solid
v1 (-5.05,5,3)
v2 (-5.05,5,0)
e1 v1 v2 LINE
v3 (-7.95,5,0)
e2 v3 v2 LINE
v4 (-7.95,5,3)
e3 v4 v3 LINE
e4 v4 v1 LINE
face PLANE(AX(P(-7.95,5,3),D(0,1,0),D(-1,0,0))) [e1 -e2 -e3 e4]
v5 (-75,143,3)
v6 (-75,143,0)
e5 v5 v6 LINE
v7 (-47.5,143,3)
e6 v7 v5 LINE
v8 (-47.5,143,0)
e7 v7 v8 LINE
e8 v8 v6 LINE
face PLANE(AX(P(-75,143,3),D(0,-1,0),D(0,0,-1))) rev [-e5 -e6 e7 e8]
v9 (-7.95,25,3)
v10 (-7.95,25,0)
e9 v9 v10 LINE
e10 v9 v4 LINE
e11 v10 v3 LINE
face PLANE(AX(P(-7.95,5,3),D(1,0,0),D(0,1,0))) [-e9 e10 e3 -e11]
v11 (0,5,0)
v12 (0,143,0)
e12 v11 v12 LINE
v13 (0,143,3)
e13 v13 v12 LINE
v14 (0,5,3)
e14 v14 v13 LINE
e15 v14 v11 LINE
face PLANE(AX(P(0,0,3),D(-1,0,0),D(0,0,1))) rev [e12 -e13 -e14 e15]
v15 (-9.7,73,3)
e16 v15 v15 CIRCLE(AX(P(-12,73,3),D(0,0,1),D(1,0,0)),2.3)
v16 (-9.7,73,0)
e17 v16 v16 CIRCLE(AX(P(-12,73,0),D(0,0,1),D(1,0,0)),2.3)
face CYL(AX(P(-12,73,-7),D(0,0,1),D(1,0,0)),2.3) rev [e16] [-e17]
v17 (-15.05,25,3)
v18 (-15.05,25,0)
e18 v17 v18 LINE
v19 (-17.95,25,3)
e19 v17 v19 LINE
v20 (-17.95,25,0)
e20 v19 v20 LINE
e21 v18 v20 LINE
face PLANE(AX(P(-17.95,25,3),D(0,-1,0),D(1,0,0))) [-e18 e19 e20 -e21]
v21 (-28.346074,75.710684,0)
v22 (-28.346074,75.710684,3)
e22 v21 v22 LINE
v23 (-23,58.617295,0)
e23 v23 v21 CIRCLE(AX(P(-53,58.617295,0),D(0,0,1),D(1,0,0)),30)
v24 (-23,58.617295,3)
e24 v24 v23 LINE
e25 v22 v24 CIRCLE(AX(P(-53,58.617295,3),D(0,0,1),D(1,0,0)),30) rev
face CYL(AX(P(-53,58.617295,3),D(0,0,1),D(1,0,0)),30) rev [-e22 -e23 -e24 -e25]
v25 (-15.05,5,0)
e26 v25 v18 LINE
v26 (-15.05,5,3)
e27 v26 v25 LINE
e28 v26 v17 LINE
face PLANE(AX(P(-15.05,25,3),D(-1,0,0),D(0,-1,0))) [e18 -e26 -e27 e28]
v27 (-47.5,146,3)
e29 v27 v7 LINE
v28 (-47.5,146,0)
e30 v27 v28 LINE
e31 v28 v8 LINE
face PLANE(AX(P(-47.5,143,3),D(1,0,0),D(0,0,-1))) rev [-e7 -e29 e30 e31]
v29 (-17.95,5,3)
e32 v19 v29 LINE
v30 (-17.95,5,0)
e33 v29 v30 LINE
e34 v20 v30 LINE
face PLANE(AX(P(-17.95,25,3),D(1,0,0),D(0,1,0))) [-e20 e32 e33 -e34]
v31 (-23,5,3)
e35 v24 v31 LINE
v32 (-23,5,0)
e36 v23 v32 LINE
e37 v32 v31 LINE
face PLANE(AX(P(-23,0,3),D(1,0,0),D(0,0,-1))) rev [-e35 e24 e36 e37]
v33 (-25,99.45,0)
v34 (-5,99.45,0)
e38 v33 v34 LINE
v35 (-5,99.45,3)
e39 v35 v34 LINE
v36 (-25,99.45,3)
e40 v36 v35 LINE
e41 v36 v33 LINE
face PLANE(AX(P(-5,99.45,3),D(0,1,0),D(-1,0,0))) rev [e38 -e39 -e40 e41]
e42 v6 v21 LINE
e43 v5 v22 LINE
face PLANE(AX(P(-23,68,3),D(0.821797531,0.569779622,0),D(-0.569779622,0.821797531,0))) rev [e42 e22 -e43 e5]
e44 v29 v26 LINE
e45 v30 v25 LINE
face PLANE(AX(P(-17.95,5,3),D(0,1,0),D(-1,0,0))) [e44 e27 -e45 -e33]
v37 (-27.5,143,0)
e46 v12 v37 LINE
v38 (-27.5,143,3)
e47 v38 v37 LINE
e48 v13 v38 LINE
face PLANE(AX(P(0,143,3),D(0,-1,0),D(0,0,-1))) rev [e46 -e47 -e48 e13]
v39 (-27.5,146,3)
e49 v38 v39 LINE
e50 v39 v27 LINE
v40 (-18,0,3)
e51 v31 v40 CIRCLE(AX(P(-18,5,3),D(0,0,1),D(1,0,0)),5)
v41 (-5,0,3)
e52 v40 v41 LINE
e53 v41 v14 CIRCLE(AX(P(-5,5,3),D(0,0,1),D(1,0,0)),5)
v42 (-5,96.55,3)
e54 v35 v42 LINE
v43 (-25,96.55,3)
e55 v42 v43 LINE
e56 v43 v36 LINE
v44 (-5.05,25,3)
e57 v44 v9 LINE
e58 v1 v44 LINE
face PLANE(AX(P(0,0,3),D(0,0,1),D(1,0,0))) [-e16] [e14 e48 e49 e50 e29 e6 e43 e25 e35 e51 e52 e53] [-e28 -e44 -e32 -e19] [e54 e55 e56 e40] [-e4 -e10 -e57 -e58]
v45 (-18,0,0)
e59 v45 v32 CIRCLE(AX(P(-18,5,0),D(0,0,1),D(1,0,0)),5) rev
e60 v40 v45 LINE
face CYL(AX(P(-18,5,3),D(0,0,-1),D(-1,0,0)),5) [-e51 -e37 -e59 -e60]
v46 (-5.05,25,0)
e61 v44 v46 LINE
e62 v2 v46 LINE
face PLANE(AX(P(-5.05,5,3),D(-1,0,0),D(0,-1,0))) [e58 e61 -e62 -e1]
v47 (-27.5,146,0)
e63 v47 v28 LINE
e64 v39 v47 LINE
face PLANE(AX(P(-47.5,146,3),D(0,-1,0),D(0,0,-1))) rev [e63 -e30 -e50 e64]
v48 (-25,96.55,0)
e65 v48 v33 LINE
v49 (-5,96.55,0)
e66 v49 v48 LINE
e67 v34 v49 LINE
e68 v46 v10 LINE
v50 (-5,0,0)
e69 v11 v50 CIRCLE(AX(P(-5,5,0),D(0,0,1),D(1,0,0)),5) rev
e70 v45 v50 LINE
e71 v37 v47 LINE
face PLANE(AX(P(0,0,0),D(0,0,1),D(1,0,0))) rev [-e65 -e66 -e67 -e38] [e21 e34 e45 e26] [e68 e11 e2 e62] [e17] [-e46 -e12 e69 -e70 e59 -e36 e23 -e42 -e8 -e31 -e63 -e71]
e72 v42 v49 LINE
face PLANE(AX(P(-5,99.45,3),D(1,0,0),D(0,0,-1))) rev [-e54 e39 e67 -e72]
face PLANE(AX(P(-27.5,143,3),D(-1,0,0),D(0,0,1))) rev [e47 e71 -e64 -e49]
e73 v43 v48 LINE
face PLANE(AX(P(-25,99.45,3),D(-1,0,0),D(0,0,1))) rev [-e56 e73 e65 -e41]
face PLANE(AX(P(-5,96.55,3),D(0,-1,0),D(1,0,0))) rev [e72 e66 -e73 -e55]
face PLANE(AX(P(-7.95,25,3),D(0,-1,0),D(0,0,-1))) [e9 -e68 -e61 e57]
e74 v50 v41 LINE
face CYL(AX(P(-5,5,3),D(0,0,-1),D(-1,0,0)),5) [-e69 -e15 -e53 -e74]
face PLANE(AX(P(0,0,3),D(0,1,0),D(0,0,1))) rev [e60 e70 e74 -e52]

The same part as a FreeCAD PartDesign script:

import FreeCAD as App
import Part
import Sketcher
from FreeCAD import Vector


def edges_at(feature, points):
    """Names of the edges that pass closest to the given points."""
    edges = feature.Shape.Edges
    near = lambda p: min(range(len(edges)), key=lambda i: edges[i].distToShape(Part.Vertex(*p))[0])
    return sorted({f"Edge{near(p) + 1}" for p in points})


def add_polygon(sketch, points):
    """Adds a closed chain of lines whose ends are joined by coincident constraints."""
    first, n = sketch.GeometryCount, len(points)
    for a, b in zip(points, points[1:] + points[:1]):
        sketch.addGeometry(Part.LineSegment(App.Vector(*a, 0), App.Vector(*b, 0)), False)
    for i in range(n):
        sketch.addConstraint(Sketcher.Constraint("Coincident", first + i, 2, first + (i + 1) % n, 1))

doc = App.newDocument("Part")
body = doc.addObject("PartDesign::Body", "Body")

# Sketch on XY plane
sketch1 = body.newObject("Sketcher::SketchObject", "Sketch")
sketch1.AttachmentSupport = (doc.getObject("XY_Plane"), [""])
sketch1.MapMode = "FlatFace"
add_polygon(sketch1, [(-23, 0), (0, 0), (0, 143), (-27.5, 143), (-27.5, 146), (-47.5, 146), (-47.5, 143), (-75, 143), (-23, 68)])  # lines 0-8
add_polygon(sketch1, [(-8, 5), (-8, 25), (-5, 25), (-5, 5)])  # lines 9-12
add_polygon(sketch1, [(-17.9, 5), (-17.9, 25), (-15.1, 25), (-15.1, 5)])  # lines 13-16
sketch1.addConstraint(Sketcher.Constraint("Horizontal", 0))
sketch1.addConstraint(Sketcher.Constraint("Vertical", 1))
sketch1.addConstraint(Sketcher.Constraint("Horizontal", 2))
sketch1.addConstraint(Sketcher.Constraint("Vertical", 3))
sketch1.addConstraint(Sketcher.Constraint("Horizontal", 4))
sketch1.addConstraint(Sketcher.Constraint("Vertical", 5))
sketch1.addConstraint(Sketcher.Constraint("Horizontal", 6))
sketch1.addConstraint(Sketcher.Constraint("Vertical", 8))
sketch1.addConstraint(Sketcher.Constraint("Vertical", 9))
sketch1.addConstraint(Sketcher.Constraint("Horizontal", 10))
sketch1.addConstraint(Sketcher.Constraint("Vertical", 11))
sketch1.addConstraint(Sketcher.Constraint("Horizontal", 12))
sketch1.addConstraint(Sketcher.Constraint("Vertical", 13))
sketch1.addConstraint(Sketcher.Constraint("Horizontal", 14))
sketch1.addConstraint(Sketcher.Constraint("Vertical", 15))
sketch1.addConstraint(Sketcher.Constraint("Horizontal", 16))
sketch1.addConstraint(Sketcher.Constraint("Coincident", 0, 2, -1, 1))
sketch1.addConstraint(Sketcher.Constraint("Horizontal", 2, 2, 5, 2))
sketch1.addConstraint(Sketcher.Constraint("Horizontal", 10, 2, 13, 2))
sketch1.addConstraint(Sketcher.Constraint("Horizontal", 12, 2, 15, 2))
sketch1.addConstraint(Sketcher.Constraint("Equal", 2, 6))
sketch1.addConstraint(Sketcher.Constraint("Equal", 12, 14))
sketch1.addConstraint(Sketcher.Constraint("Equal", 4, 9))
sketch1.addConstraint(Sketcher.Constraint("DistanceX", 0, 1, 0, 2, 23.0))
sketch1.addConstraint(Sketcher.Constraint("DistanceX", 4, 2, 4, 1, 20.0))
sketch1.addConstraint(Sketcher.Constraint("DistanceY", 1, 1, 1, 2, 143.0))
sketch1.addConstraint(Sketcher.Constraint("DistanceY", 3, 1, 3, 2, 3.0))
sketch1.addConstraint(Sketcher.Constraint("DistanceY", 8, 2, 8, 1, 68.0))
sketch1.addConstraint(Sketcher.Constraint("DistanceX", 2, 2, 2, 1, 27.5))
sketch1.addConstraint(Sketcher.Constraint("DistanceX", 10, 1, 10, 2, 2.9))
sketch1.addConstraint(Sketcher.Constraint("DistanceY", -1, 1, 9, 2, 25.0))
sketch1.addConstraint(Sketcher.Constraint("DistanceX", 13, 2, 9, 2, 10.0))
sketch1.addConstraint(Sketcher.Constraint("DistanceX", 9, 2, -1, 1, 7.95))
pad1 = body.newObject("PartDesign::Pad", "Pad")
pad1.Profile = sketch1
pad1.Length = 3
doc.recompute()

fillet = body.newObject("PartDesign::Fillet", "Fillet")
fillet.Base = (pad1, edges_at(pad1, [(0, 0, 1.5), (-23, 0, 1.5)]))
fillet.Radius = 5
doc.recompute()

fillet2 = body.newObject("PartDesign::Fillet", "Fillet001")
fillet2.Base = (fillet, edges_at(fillet, [(-23, 68, 1.5)]))
fillet2.Radius = 30

# Sketch on XY plane
sketch2 = body.newObject("Sketcher::SketchObject", "Sketch001")
sketch2.AttachmentSupport = (doc.getObject("XY_Plane"), [""])
sketch2.MapMode = "FlatFace"
sketch2.AttachmentOffset = App.Placement(Vector(0, 0, 3), App.Rotation())
sketch2.addGeometry(Part.Circle(Vector(-12, 73, 0), Vector(0, 0, 1), 2.3), False)
sketch2.addConstraint(Sketcher.Constraint("Diameter", 0, 4.6))
sketch2.addConstraint(Sketcher.Constraint("DistanceX", 0, 3, -1, 1, 12.0))
sketch2.addConstraint(Sketcher.Constraint("DistanceY", -1, 1, 0, 3, 73.0))
pocket1 = body.newObject("PartDesign::Pocket", "Pocket")
pocket1.Profile = sketch2
pocket1.Length = 10

# Sketch on XY plane
sketch3 = body.newObject("Sketcher::SketchObject", "Sketch002")
sketch3.AttachmentSupport = (doc.getObject("XY_Plane"), [""])
sketch3.MapMode = "FlatFace"
add_polygon(sketch3, [(-5, 99.5), (-5, 96.5), (-25, 96.5), (-25, 99.5)])  # lines 0-3
sketch3.addConstraint(Sketcher.Constraint("Vertical", 0))
sketch3.addConstraint(Sketcher.Constraint("Horizontal", 1))
sketch3.addConstraint(Sketcher.Constraint("Vertical", 2))
sketch3.addConstraint(Sketcher.Constraint("Horizontal", 3))
sketch3.addConstraint(Sketcher.Constraint("DistanceX", 1, 2, 1, 1, 20.0))
sketch3.addConstraint(Sketcher.Constraint("DistanceY", 0, 2, 0, 1, 2.9))
sketch3.addConstraint(Sketcher.Constraint("DistanceX", 0, 2, -1, 1, 5.0))
sketch3.addConstraint(Sketcher.Constraint("DistanceY", -1, 1, 0, 2, 96.55))
pocket2 = body.newObject("PartDesign::Pocket", "Pocket001")
pocket2.Profile = sketch3
pocket2.Type = "ThroughAll"
pocket2.Reversed = True

doc.recompute()
